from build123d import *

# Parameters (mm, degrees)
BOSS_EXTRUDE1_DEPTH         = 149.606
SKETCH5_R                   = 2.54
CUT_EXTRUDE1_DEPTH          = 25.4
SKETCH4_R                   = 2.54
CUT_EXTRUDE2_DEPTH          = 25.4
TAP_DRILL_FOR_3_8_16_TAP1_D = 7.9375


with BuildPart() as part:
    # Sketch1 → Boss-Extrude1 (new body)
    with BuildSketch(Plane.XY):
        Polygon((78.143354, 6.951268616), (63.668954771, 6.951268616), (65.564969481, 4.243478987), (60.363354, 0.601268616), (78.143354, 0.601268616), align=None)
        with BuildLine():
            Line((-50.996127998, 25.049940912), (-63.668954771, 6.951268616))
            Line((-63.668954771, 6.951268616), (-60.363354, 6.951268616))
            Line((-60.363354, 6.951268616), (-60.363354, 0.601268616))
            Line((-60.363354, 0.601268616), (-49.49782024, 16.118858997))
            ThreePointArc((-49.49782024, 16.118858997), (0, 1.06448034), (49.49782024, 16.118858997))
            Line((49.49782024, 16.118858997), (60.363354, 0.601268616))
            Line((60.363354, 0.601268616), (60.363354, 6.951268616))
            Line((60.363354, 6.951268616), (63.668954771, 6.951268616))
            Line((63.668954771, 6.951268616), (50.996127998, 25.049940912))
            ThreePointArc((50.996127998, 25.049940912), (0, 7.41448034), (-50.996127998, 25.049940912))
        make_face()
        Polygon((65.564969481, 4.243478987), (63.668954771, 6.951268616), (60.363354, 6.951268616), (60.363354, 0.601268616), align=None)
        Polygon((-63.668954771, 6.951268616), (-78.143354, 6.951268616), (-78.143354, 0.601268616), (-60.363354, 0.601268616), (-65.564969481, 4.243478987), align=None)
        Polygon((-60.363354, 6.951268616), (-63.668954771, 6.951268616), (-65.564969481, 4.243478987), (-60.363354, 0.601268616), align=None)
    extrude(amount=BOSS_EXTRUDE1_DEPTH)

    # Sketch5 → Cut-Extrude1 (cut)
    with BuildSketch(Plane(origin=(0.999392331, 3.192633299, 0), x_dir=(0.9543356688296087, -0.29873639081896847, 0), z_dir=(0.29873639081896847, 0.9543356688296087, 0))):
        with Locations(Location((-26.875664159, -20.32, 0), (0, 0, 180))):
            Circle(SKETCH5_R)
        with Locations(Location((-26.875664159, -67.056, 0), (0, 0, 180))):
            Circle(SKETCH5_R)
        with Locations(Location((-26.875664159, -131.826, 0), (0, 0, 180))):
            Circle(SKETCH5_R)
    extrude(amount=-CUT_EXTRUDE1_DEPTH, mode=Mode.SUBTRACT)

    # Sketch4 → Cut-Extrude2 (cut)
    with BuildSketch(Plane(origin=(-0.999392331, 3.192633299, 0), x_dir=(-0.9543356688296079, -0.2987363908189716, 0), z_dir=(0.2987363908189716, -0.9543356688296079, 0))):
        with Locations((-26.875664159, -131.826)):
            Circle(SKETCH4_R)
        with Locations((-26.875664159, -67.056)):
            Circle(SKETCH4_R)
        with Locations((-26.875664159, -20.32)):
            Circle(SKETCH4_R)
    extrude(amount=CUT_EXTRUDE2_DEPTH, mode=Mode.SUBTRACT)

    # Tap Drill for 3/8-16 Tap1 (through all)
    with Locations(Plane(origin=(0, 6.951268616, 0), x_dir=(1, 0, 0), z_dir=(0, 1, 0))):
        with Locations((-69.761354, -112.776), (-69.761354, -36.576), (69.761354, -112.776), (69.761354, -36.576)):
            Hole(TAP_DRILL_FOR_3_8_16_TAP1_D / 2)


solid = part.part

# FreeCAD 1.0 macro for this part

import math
import FreeCAD as App
import Part
import Sketcher
from FreeCAD import Vector
Q = App.Units.Quantity

doc = App.newDocument("Part")
body = doc.addObject("PartDesign::Body", "Body")

# Sketch on XY plane
sketch1 = body.newObject("Sketcher::SketchObject", "Sketch")
sketch1.AttachmentSupport = (doc.getObject("XY_Plane"), [""])
sketch1.MapMode = "FlatFace"
sketch1.addGeometry(Part.LineSegment(Vector(78.143354, 6.951269, 0), Vector(63.668955, 6.951269, 0)), False)
sketch1.addGeometry(Part.LineSegment(Vector(63.668955, 6.951269, 0), Vector(50.996128, 25.049941, 0)), False)
sketch1.addGeometry(Part.ArcOfCircle(Part.Circle(Vector(0, 89.96448, 0), Vector(0, 0, 1), 82.55), math.radians(-128.152777), math.radians(-51.847223)), False)
sketch1.addGeometry(Part.LineSegment(Vector(-50.996128, 25.049941, 0), Vector(-63.668955, 6.951269, 0)), False)
sketch1.addGeometry(Part.LineSegment(Vector(-63.668955, 6.951269, 0), Vector(-78.143354, 6.951269, 0)), False)
sketch1.addGeometry(Part.LineSegment(Vector(-78.143354, 6.951269, 0), Vector(-78.143354, 0.601269, 0)), False)
sketch1.addGeometry(Part.LineSegment(Vector(-78.143354, 0.601269, 0), Vector(-60.363354, 0.601269, 0)), False)
sketch1.addGeometry(Part.LineSegment(Vector(-60.363354, 0.601269, 0), Vector(-49.49782, 16.118859, 0)), False)
sketch1.addGeometry(Part.ArcOfCircle(Part.Circle(Vector(0, 89.96448, 0), Vector(0, 0, 1), 88.9), math.radians(-123.833465), math.radians(-56.166535)), False)
sketch1.addGeometry(Part.LineSegment(Vector(49.49782, 16.118859, 0), Vector(60.363354, 0.601269, 0)), False)
sketch1.addGeometry(Part.LineSegment(Vector(60.363354, 0.601269, 0), Vector(78.143354, 0.601269, 0)), False)
sketch1.addGeometry(Part.LineSegment(Vector(78.143354, 0.601269, 0), Vector(78.143354, 6.951269, 0)), False)
sketch1.addConstraint(Sketcher.Constraint("Coincident", 0, 2, 1, 1))
sketch1.addConstraint(Sketcher.Constraint("Coincident", 1, 2, 2, 2))
sketch1.addConstraint(Sketcher.Constraint("Coincident", 2, 1, 3, 1))
sketch1.addConstraint(Sketcher.Constraint("Coincident", 3, 2, 4, 1))
sketch1.addConstraint(Sketcher.Constraint("Coincident", 4, 2, 5, 1))
sketch1.addConstraint(Sketcher.Constraint("Coincident", 5, 2, 6, 1))
sketch1.addConstraint(Sketcher.Constraint("Coincident", 6, 2, 7, 1))
sketch1.addConstraint(Sketcher.Constraint("Coincident", 7, 2, 8, 1))
sketch1.addConstraint(Sketcher.Constraint("Coincident", 8, 2, 9, 1))
sketch1.addConstraint(Sketcher.Constraint("Coincident", 9, 2, 10, 1))
sketch1.addConstraint(Sketcher.Constraint("Coincident", 10, 2, 11, 1))
sketch1.addConstraint(Sketcher.Constraint("Coincident", 11, 2, 0, 1))
sketch1.addConstraint(Sketcher.Constraint("Horizontal", 0))
sketch1.addConstraint(Sketcher.Constraint("Horizontal", 4))
sketch1.addConstraint(Sketcher.Constraint("Vertical", 5))
sketch1.addConstraint(Sketcher.Constraint("Horizontal", 6))
sketch1.addConstraint(Sketcher.Constraint("Horizontal", 10))
sketch1.addConstraint(Sketcher.Constraint("Vertical", 11))
sketch1.addConstraint(Sketcher.Constraint("Coincident", 8, 3, 2, 3))
sketch1.addConstraint(Sketcher.Constraint("Symmetric", 1, 2, 2, 1, -2))
sketch1.addConstraint(Sketcher.Constraint("Symmetric", 0, 2, 3, 2, -2))
sketch1.addConstraint(Sketcher.Constraint("Symmetric", 6, 2, 9, 2, -2))
sketch1.addConstraint(Sketcher.Constraint("Parallel", 3, 7))
sketch1.addConstraint(Sketcher.Constraint("Parallel", 1, 9))
sketch1.addConstraint(Sketcher.Constraint("Equal", 0, 4))
sketch1.addConstraint(Sketcher.Constraint("Radius", 8, Q("3.5 in")))
sketch1.addConstraint(Sketcher.Constraint("Radius", 2, Q("3.25 in")))
sketch1.addConstraint(Sketcher.Constraint("DistanceX", 6, 1, 6, 2, Q("0.7 in")))
sketch1.addConstraint(Sketcher.Constraint("Angle", 1, Q("125 deg")))
sketch1.addConstraint(Sketcher.Constraint("DistanceY", 5, 2, 5, 1, Q("0.25 in")))
sketch1.addConstraint(Sketcher.Constraint("DistanceX", 0, 2, 0, 1, Q("14.474399 mm")))
sketch1.addConstraint(Sketcher.Constraint("Distance", 1, Q("22.094399 mm")))
sketch1.addConstraint(Sketcher.Constraint("Distance", 7, Q("18.94348 mm")))
sketch1.addConstraint(Sketcher.Constraint("DistanceY", -1, 1, 2, 3, Q("89.96448 mm")))
pad1 = body.newObject("PartDesign::Pad", "Pad")
pad1.Profile = sketch1
pad1.Length = Q("5.89 in")

# Sketch on an angled plane
sketch2 = body.newObject("Sketcher::SketchObject", "Sketch001")
sketch2.Placement = App.Placement(Vector(0.999392, 3.192633, 0), App.Rotation(Vector(0.954335669, -0.298736391, 0), Vector(0, 0, -1), Vector(0.298736391, 0.954335669, 0), "ZXY"))
sketch2.addGeometry(Part.Circle(Vector(-26.875664, -20.32, 0), Vector(0, 0, 1), 2.54), False)
sketch2.addGeometry(Part.Circle(Vector(-26.875664, -67.056, 0), Vector(0, 0, 1), 2.54), False)
sketch2.addGeometry(Part.Circle(Vector(-26.875664, -131.826, 0), Vector(0, 0, 1), 2.54), False)
sketch2.addConstraint(Sketcher.Constraint("Equal", 0, 1))
sketch2.addConstraint(Sketcher.Constraint("Equal", 1, 2))
sketch2.addConstraint(Sketcher.Constraint("Vertical", 0, 3, 1, 3))
sketch2.addConstraint(Sketcher.Constraint("Vertical", 1, 3, 2, 3))
sketch2.addConstraint(Sketcher.Constraint("Diameter", 0, Q("0.2 in")))
sketch2.addConstraint(Sketcher.Constraint("DistanceY", 0, 3, -1, 1, Q("0.8 in")))
sketch2.addConstraint(Sketcher.Constraint("DistanceY", 1, 3, -1, 1, Q("2.64 in")))
sketch2.addConstraint(Sketcher.Constraint("DistanceY", 2, 3, -1, 1, Q("5.19 in")))
sketch2.addConstraint(Sketcher.Constraint("DistanceX", 0, 3, -1, 1, Q("26.875664 mm")))
pocket1 = body.newObject("PartDesign::Pocket", "Pocket")
pocket1.Profile = sketch2
pocket1.Length = Q("1 in")

# Sketch on an angled plane
sketch3 = body.newObject("Sketcher::SketchObject", "Sketch002")
sketch3.Placement = App.Placement(Vector(-0.999392, 3.192633, 0), App.Rotation(Vector(-0.954335669, -0.298736391, 0), Vector(0, 0, -1), Vector(0.298736391, -0.954335669, 0), "ZXY"))
sketch3.addGeometry(Part.Circle(Vector(-26.875664, -131.826, 0), Vector(0, 0, 1), 2.54), False)
sketch3.addGeometry(Part.Circle(Vector(-26.875664, -67.056, 0), Vector(0, 0, 1), 2.54), False)
sketch3.addGeometry(Part.Circle(Vector(-26.875664, -20.32, 0), Vector(0, 0, 1), 2.54), False)
sketch3.addConstraint(Sketcher.Constraint("Equal", 0, 1))
sketch3.addConstraint(Sketcher.Constraint("Equal", 1, 2))
sketch3.addConstraint(Sketcher.Constraint("Vertical", 0, 3, 1, 3))
sketch3.addConstraint(Sketcher.Constraint("Vertical", 1, 3, 2, 3))
sketch3.addConstraint(Sketcher.Constraint("Diameter", 0, Q("0.2 in")))
sketch3.addConstraint(Sketcher.Constraint("DistanceY", 2, 3, -1, 1, Q("0.8 in")))
sketch3.addConstraint(Sketcher.Constraint("DistanceY", 0, 3, -1, 1, Q("5.19 in")))
sketch3.addConstraint(Sketcher.Constraint("DistanceY", 1, 3, -1, 1, Q("2.64 in")))
sketch3.addConstraint(Sketcher.Constraint("DistanceX", 0, 3, -1, 1, Q("26.875664 mm")))
pocket2 = body.newObject("PartDesign::Pocket", "Pocket001")
pocket2.Profile = sketch3
pocket2.Length = Q("1 in")
pocket2.Reversed = True

# Sketch on XZ plane
sketch4 = body.newObject("Sketcher::SketchObject", "Sketch003")
sketch4.AttachmentSupport = (doc.getObject("XZ_Plane"), [""])
sketch4.MapMode = "FlatFace"
sketch4.AttachmentOffset = App.Placement(Vector(0, 0, -6.951269), App.Rotation())
sketch4.addGeometry(Part.Circle(Vector(-69.761354, 112.776, 0), Vector(0, 0, 1), 3.96875), False)
sketch4.addGeometry(Part.Circle(Vector(-69.761354, 36.576, 0), Vector(0, 0, 1), 3.96875), False)
sketch4.addGeometry(Part.Circle(Vector(69.761354, 112.776, 0), Vector(0, 0, 1), 3.96875), False)
sketch4.addGeometry(Part.Circle(Vector(69.761354, 36.576, 0), Vector(0, 0, 1), 3.96875), False)
sketch4.addConstraint(Sketcher.Constraint("Equal", 0, 1))
sketch4.addConstraint(Sketcher.Constraint("Equal", 1, 2))
sketch4.addConstraint(Sketcher.Constraint("Equal", 2, 3))
sketch4.addConstraint(Sketcher.Constraint("Symmetric", 0, 3, 2, 3, -2))
sketch4.addConstraint(Sketcher.Constraint("Symmetric", 1, 3, 3, 3, -2))
sketch4.addConstraint(Sketcher.Constraint("Vertical", 0, 3, 1, 3))
sketch4.addConstraint(Sketcher.Constraint("Diameter", 0, Q("0.3125 in")))
sketch4.addConstraint(Sketcher.Constraint("DistanceY", 1, 3, 0, 3, Q("3 in")))
sketch4.addConstraint(Sketcher.Constraint("DistanceY", -1, 1, 0, 3, Q("4.44 in")))
sketch4.addConstraint(Sketcher.Constraint("DistanceX", 0, 3, 2, 3, Q("139.522708 mm")))
doc.recompute()
hole = body.newObject("PartDesign::Hole", "Hole")
hole.Profile = sketch4
hole.ThreadType = "None"
hole.Diameter = Q("0.3125 in")
hole.DepthType = "ThroughAll"
hole.Reversed = True

doc.recompute()
